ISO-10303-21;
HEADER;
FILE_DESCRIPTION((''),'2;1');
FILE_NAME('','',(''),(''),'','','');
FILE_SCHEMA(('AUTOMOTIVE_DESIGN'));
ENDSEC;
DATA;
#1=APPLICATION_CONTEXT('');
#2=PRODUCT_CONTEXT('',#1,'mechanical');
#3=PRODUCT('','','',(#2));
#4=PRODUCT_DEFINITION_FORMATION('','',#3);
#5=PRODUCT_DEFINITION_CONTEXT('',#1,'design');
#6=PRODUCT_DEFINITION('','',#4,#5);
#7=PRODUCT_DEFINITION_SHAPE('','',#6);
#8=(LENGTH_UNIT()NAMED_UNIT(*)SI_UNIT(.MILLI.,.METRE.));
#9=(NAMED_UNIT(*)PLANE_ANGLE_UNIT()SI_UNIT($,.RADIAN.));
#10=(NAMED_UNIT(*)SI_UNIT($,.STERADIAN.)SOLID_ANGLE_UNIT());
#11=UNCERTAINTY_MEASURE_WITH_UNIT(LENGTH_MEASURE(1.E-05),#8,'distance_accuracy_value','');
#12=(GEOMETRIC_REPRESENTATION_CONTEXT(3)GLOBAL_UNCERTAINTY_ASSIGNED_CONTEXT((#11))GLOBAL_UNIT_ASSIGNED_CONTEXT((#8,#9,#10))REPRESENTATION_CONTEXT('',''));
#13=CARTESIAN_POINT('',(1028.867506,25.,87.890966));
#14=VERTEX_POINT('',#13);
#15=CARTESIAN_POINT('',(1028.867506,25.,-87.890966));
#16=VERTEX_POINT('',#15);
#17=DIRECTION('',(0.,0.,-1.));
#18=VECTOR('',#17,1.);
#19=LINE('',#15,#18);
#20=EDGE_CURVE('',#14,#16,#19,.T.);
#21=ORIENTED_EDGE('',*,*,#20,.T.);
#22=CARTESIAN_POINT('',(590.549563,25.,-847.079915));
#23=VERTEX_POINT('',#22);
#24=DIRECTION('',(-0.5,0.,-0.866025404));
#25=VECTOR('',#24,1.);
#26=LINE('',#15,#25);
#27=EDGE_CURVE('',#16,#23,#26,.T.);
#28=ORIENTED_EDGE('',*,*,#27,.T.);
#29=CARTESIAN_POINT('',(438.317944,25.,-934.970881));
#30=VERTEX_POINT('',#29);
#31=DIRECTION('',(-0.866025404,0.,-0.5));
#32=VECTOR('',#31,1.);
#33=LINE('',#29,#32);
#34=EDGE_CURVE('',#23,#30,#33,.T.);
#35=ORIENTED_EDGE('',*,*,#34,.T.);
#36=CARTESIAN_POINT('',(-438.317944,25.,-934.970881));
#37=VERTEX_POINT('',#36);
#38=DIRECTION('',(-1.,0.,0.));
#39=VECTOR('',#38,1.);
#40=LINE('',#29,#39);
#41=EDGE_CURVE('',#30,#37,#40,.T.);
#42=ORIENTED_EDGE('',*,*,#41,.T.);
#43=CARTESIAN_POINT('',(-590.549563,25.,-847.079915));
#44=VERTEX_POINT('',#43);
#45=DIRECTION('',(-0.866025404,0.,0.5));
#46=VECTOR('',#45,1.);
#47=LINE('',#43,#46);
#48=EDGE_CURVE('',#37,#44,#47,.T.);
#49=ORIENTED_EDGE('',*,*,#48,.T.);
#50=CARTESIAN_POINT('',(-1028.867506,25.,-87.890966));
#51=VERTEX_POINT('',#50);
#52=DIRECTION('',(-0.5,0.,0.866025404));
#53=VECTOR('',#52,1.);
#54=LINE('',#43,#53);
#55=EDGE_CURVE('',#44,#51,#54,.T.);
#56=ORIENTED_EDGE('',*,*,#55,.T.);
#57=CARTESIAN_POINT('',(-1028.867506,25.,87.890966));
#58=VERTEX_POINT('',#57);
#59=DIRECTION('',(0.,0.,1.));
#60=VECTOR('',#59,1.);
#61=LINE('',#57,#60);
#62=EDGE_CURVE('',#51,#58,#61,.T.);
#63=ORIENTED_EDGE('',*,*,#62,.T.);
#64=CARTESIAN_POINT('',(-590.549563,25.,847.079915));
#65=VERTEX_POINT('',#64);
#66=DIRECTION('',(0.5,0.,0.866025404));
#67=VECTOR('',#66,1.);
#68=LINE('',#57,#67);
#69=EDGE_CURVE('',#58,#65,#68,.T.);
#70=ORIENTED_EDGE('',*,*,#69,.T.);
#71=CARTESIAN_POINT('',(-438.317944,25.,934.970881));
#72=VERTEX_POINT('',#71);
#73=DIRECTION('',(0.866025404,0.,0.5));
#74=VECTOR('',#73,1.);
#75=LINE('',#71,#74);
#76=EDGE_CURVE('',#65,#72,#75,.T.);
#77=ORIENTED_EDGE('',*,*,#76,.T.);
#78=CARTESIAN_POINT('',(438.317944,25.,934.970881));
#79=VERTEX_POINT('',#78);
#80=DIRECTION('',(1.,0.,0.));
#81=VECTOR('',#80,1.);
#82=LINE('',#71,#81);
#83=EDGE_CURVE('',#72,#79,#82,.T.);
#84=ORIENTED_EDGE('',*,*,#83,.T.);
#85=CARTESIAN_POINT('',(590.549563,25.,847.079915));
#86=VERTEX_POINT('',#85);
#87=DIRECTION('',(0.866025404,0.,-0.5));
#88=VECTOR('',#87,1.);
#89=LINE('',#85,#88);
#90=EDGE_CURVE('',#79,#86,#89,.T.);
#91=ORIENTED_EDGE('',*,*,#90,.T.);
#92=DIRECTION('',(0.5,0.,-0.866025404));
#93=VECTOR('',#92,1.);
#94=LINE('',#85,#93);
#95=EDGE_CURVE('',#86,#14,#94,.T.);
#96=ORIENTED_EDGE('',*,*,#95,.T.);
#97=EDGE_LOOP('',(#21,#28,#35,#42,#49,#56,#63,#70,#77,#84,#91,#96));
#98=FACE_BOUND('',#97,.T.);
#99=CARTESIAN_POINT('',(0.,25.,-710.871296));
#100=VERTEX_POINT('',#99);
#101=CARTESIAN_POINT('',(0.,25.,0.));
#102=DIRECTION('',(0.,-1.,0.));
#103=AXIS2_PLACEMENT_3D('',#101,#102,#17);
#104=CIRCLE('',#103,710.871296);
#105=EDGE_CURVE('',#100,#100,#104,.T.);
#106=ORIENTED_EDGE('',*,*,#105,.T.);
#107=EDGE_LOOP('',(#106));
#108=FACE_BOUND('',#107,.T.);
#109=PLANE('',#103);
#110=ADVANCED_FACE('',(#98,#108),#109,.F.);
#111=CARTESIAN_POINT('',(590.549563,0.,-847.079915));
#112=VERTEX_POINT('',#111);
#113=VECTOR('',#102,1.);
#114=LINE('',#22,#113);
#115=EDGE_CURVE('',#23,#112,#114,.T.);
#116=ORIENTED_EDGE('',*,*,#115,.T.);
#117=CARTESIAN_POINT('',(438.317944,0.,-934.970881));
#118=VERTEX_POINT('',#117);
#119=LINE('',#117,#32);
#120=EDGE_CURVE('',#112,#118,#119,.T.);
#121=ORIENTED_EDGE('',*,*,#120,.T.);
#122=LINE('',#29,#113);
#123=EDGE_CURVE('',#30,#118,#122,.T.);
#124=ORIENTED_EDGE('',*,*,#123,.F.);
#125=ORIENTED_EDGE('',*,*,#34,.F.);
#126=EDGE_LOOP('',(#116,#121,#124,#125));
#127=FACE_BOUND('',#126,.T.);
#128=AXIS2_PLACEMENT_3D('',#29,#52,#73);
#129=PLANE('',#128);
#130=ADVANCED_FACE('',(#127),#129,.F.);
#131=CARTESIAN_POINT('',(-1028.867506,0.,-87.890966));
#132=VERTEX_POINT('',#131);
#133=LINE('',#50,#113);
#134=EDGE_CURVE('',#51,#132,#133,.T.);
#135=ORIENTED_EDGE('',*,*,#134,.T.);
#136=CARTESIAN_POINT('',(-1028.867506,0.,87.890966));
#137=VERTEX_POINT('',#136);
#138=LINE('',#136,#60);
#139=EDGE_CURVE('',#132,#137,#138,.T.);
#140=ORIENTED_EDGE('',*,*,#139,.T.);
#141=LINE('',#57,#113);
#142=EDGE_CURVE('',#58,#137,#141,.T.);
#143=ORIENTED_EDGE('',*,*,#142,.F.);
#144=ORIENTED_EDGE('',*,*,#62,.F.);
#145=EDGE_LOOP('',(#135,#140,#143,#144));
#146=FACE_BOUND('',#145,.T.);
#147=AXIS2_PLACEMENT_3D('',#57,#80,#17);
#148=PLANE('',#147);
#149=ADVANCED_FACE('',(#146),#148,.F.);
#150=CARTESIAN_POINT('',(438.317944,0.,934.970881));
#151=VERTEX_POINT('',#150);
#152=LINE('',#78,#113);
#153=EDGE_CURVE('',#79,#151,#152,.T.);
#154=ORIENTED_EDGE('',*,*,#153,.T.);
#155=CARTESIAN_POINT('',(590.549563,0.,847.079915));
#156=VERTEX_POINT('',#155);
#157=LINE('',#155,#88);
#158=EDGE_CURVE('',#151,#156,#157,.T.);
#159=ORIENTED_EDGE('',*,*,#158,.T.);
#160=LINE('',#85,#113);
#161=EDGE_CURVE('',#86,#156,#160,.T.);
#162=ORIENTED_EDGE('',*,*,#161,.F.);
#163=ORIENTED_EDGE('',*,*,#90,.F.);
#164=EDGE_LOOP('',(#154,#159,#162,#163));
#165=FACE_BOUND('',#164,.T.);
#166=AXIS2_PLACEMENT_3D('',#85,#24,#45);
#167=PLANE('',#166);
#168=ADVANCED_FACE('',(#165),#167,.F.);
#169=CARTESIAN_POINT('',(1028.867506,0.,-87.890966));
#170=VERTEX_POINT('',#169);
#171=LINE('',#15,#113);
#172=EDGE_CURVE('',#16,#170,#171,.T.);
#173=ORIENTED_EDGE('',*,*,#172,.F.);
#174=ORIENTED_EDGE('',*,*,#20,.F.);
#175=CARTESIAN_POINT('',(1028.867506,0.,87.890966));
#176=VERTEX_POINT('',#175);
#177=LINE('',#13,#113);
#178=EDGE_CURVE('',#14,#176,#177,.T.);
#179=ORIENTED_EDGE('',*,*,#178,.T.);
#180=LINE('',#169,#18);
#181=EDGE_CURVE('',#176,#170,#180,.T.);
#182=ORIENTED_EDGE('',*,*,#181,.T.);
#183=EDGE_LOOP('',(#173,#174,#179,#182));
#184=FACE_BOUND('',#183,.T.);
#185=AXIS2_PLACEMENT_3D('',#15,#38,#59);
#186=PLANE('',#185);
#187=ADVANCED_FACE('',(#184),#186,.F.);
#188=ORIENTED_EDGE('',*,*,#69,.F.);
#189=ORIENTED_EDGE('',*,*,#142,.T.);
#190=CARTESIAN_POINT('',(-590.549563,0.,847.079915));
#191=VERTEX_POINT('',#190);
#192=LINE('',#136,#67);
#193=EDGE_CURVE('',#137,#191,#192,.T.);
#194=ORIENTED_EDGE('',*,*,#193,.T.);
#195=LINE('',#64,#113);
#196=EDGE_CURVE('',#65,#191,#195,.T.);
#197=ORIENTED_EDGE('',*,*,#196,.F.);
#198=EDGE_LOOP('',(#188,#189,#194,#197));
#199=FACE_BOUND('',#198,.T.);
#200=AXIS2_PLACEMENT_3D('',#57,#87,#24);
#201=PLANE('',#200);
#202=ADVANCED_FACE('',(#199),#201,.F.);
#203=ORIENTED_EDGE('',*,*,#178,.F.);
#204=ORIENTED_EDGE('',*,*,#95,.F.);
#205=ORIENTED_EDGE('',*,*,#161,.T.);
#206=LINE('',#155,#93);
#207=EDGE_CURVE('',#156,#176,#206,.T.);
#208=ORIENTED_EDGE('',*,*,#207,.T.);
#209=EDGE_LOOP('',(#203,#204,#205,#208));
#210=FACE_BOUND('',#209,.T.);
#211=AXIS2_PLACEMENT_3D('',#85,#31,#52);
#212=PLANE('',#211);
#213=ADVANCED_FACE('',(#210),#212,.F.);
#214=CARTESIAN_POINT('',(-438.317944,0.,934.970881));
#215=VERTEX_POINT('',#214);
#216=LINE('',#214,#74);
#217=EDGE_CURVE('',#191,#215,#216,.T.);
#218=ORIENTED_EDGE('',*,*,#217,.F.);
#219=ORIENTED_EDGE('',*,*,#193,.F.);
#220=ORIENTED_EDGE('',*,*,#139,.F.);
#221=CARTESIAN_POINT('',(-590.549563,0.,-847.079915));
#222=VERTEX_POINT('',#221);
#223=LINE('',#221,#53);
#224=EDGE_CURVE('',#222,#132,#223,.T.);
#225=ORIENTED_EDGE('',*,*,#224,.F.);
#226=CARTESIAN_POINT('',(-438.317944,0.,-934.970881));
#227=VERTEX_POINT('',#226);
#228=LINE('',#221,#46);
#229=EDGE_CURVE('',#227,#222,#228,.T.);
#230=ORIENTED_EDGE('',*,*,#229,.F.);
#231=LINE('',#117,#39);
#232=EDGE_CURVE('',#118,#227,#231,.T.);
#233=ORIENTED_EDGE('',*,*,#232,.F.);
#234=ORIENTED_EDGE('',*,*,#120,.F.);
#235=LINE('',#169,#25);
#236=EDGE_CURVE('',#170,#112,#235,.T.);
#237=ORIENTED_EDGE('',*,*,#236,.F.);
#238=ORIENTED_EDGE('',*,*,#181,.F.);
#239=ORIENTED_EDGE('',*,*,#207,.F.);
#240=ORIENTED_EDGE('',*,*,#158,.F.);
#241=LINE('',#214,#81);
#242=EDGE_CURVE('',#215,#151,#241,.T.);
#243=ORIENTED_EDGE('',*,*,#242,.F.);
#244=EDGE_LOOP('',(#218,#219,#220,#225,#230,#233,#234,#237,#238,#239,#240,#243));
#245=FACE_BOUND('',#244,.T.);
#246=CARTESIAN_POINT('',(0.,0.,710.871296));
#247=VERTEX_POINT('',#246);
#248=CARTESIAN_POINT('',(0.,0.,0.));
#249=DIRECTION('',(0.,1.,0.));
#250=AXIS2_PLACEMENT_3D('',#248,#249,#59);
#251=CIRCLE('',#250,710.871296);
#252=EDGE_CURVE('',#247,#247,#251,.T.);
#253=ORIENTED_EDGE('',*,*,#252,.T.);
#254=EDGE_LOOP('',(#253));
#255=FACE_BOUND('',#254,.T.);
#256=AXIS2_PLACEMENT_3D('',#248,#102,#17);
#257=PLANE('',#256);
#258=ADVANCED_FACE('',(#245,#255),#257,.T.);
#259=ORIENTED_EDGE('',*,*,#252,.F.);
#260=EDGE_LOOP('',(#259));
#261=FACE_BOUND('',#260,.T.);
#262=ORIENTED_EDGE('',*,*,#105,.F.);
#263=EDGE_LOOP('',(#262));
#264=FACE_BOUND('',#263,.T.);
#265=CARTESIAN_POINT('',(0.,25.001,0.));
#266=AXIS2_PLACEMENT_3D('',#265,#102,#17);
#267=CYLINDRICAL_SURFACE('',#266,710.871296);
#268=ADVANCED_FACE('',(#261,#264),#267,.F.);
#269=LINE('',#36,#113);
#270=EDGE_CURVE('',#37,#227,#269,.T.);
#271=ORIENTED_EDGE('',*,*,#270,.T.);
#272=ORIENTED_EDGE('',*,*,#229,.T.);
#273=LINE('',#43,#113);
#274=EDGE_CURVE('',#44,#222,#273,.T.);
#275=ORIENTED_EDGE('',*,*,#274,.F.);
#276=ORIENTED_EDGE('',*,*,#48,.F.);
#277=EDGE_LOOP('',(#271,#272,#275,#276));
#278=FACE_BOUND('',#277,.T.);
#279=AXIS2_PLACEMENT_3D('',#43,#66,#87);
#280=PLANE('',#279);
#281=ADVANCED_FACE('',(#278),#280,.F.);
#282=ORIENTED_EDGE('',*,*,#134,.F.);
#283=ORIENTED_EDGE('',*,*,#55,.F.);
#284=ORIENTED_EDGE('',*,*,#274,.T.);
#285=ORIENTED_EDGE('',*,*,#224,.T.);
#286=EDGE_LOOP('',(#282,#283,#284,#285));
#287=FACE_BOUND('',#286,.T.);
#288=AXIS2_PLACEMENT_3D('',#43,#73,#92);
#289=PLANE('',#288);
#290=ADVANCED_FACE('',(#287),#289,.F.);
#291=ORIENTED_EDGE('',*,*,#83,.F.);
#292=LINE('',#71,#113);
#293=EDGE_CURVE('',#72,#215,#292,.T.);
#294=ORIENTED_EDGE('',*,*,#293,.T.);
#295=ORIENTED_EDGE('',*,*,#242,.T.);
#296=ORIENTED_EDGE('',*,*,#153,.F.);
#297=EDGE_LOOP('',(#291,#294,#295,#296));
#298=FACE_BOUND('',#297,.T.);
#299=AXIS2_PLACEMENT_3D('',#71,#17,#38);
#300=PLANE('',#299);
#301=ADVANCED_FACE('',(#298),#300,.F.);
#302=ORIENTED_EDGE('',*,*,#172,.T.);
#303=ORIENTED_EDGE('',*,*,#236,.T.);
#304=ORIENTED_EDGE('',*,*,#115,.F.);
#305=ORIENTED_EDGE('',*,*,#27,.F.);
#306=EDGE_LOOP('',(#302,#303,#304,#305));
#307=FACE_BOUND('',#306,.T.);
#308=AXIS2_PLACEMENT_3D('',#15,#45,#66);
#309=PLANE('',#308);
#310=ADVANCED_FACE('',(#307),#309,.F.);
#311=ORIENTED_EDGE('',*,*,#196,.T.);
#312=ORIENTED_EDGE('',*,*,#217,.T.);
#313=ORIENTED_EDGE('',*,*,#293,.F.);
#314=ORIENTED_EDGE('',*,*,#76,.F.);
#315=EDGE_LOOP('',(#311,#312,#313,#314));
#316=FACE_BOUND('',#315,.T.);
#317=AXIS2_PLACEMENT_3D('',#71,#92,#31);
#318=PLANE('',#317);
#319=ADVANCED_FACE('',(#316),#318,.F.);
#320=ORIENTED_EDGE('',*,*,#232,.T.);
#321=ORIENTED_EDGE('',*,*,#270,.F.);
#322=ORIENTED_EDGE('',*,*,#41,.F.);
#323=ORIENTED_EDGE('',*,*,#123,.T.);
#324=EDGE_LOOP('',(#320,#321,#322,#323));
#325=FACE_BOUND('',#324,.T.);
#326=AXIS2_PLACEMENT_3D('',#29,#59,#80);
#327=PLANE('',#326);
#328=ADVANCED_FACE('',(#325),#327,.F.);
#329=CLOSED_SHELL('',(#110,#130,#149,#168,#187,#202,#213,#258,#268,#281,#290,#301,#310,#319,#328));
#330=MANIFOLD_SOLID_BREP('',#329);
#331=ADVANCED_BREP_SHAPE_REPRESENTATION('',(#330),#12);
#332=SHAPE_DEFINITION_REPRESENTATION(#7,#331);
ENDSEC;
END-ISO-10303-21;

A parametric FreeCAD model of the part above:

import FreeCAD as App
import Part
import Sketcher
Q = App.Units.Quantity


def add_polygon(sketch, points):
    """Adds a closed chain of lines whose ends are joined by coincident constraints."""
    first, n = sketch.GeometryCount, len(points)
    for a, b in zip(points, points[1:] + points[:1]):
        sketch.addGeometry(Part.LineSegment(App.Vector(*a, 0), App.Vector(*b, 0)), False)
    for i in range(n):
        sketch.addConstraint(Sketcher.Constraint("Coincident", first + i, 2, first + (i + 1) % n, 1))

doc = App.newDocument("Part")
body = doc.addObject("PartDesign::Body", "Body")

# Sketch on XZ plane
sketch1 = doc.addObject("Sketcher::SketchObject", "Sketch")
body.addObject(sketch1)
sketch1.AttachmentSupport = (doc.XZ_Plane, [""])
sketch1.MapMode = "FlatFace"
add_polygon(sketch1, [(591, -847), (438, -935), (-438, -935), (-591, -847), (-1029, -88), (-1029, 88), (-591, 847), (-438, 935), (438, 935), (591, 847), (1029, 88), (1029, -88)])  # lines 0-11
sketch1.addConstraint([
    Sketcher.Constraint("Horizontal", 1),
    Sketcher.Constraint("Vertical", 4),
    Sketcher.Constraint("Horizontal", 7),
    Sketcher.Constraint("Vertical", 10),
    Sketcher.Constraint("Symmetric", 0, 2, 6, 2, -1, 1),
    Sketcher.Constraint("Symmetric", 2, 2, 8, 2, -1, 1),
    Sketcher.Constraint("Symmetric", 3, 2, 9, 2, -1, 1),
    Sketcher.Constraint("Symmetric", 5, 2, 11, 2, -1, 1),
    Sketcher.Constraint("Symmetric", 5, 2, 8, 2, -2),
    Sketcher.Constraint("Perpendicular", 0, 3),
    Sketcher.Constraint("Perpendicular", 2, 5),
    Sketcher.Constraint("Perpendicular", 5, 8),
    Sketcher.Constraint("Perpendicular", 8, 11),
    Sketcher.Constraint("Horizontal", 4, 2, 9, 2),
    Sketcher.Constraint("Angle", 0, Q("-150 deg")),
    Sketcher.Constraint("DistanceX", 1, 2, 1, 1, 876.635888),
    Sketcher.Constraint("DistanceY", 4, 1, 4, 2, 175.781932),
    Sketcher.Constraint("DistanceY", 0, 2, -1, 1, 934.970881),
    Sketcher.Constraint("DistanceX", 2, 2, 1, 2, 152.231619),
])
pad1 = doc.addObject("PartDesign::Pad", "Pad")
body.addObject(pad1)
pad1.Profile = sketch1
pad1.Length = 25
pad1.Reversed = True

# Sketch on XZ plane
sketch2 = doc.addObject("Sketcher::SketchObject", "Sketch001")
body.addObject(sketch2)
sketch2.AttachmentSupport = (doc.XZ_Plane, [""])
sketch2.MapMode = "FlatFace"
sketch2.addGeometry(Part.Circle(App.Vector(0, 0, 0), App.Vector(0, 0, 1), 711), False)
sketch2.addConstraint([
    Sketcher.Constraint("Coincident", 0, 3, -1, 1),
    Sketcher.Constraint("Diameter", 0, 1421.742593),
])
pocket1 = doc.addObject("PartDesign::Pocket", "Pocket")
body.addObject(pocket1)
pocket1.Profile = sketch2
pocket1.Type = "UpToFirst"

doc.recompute()
